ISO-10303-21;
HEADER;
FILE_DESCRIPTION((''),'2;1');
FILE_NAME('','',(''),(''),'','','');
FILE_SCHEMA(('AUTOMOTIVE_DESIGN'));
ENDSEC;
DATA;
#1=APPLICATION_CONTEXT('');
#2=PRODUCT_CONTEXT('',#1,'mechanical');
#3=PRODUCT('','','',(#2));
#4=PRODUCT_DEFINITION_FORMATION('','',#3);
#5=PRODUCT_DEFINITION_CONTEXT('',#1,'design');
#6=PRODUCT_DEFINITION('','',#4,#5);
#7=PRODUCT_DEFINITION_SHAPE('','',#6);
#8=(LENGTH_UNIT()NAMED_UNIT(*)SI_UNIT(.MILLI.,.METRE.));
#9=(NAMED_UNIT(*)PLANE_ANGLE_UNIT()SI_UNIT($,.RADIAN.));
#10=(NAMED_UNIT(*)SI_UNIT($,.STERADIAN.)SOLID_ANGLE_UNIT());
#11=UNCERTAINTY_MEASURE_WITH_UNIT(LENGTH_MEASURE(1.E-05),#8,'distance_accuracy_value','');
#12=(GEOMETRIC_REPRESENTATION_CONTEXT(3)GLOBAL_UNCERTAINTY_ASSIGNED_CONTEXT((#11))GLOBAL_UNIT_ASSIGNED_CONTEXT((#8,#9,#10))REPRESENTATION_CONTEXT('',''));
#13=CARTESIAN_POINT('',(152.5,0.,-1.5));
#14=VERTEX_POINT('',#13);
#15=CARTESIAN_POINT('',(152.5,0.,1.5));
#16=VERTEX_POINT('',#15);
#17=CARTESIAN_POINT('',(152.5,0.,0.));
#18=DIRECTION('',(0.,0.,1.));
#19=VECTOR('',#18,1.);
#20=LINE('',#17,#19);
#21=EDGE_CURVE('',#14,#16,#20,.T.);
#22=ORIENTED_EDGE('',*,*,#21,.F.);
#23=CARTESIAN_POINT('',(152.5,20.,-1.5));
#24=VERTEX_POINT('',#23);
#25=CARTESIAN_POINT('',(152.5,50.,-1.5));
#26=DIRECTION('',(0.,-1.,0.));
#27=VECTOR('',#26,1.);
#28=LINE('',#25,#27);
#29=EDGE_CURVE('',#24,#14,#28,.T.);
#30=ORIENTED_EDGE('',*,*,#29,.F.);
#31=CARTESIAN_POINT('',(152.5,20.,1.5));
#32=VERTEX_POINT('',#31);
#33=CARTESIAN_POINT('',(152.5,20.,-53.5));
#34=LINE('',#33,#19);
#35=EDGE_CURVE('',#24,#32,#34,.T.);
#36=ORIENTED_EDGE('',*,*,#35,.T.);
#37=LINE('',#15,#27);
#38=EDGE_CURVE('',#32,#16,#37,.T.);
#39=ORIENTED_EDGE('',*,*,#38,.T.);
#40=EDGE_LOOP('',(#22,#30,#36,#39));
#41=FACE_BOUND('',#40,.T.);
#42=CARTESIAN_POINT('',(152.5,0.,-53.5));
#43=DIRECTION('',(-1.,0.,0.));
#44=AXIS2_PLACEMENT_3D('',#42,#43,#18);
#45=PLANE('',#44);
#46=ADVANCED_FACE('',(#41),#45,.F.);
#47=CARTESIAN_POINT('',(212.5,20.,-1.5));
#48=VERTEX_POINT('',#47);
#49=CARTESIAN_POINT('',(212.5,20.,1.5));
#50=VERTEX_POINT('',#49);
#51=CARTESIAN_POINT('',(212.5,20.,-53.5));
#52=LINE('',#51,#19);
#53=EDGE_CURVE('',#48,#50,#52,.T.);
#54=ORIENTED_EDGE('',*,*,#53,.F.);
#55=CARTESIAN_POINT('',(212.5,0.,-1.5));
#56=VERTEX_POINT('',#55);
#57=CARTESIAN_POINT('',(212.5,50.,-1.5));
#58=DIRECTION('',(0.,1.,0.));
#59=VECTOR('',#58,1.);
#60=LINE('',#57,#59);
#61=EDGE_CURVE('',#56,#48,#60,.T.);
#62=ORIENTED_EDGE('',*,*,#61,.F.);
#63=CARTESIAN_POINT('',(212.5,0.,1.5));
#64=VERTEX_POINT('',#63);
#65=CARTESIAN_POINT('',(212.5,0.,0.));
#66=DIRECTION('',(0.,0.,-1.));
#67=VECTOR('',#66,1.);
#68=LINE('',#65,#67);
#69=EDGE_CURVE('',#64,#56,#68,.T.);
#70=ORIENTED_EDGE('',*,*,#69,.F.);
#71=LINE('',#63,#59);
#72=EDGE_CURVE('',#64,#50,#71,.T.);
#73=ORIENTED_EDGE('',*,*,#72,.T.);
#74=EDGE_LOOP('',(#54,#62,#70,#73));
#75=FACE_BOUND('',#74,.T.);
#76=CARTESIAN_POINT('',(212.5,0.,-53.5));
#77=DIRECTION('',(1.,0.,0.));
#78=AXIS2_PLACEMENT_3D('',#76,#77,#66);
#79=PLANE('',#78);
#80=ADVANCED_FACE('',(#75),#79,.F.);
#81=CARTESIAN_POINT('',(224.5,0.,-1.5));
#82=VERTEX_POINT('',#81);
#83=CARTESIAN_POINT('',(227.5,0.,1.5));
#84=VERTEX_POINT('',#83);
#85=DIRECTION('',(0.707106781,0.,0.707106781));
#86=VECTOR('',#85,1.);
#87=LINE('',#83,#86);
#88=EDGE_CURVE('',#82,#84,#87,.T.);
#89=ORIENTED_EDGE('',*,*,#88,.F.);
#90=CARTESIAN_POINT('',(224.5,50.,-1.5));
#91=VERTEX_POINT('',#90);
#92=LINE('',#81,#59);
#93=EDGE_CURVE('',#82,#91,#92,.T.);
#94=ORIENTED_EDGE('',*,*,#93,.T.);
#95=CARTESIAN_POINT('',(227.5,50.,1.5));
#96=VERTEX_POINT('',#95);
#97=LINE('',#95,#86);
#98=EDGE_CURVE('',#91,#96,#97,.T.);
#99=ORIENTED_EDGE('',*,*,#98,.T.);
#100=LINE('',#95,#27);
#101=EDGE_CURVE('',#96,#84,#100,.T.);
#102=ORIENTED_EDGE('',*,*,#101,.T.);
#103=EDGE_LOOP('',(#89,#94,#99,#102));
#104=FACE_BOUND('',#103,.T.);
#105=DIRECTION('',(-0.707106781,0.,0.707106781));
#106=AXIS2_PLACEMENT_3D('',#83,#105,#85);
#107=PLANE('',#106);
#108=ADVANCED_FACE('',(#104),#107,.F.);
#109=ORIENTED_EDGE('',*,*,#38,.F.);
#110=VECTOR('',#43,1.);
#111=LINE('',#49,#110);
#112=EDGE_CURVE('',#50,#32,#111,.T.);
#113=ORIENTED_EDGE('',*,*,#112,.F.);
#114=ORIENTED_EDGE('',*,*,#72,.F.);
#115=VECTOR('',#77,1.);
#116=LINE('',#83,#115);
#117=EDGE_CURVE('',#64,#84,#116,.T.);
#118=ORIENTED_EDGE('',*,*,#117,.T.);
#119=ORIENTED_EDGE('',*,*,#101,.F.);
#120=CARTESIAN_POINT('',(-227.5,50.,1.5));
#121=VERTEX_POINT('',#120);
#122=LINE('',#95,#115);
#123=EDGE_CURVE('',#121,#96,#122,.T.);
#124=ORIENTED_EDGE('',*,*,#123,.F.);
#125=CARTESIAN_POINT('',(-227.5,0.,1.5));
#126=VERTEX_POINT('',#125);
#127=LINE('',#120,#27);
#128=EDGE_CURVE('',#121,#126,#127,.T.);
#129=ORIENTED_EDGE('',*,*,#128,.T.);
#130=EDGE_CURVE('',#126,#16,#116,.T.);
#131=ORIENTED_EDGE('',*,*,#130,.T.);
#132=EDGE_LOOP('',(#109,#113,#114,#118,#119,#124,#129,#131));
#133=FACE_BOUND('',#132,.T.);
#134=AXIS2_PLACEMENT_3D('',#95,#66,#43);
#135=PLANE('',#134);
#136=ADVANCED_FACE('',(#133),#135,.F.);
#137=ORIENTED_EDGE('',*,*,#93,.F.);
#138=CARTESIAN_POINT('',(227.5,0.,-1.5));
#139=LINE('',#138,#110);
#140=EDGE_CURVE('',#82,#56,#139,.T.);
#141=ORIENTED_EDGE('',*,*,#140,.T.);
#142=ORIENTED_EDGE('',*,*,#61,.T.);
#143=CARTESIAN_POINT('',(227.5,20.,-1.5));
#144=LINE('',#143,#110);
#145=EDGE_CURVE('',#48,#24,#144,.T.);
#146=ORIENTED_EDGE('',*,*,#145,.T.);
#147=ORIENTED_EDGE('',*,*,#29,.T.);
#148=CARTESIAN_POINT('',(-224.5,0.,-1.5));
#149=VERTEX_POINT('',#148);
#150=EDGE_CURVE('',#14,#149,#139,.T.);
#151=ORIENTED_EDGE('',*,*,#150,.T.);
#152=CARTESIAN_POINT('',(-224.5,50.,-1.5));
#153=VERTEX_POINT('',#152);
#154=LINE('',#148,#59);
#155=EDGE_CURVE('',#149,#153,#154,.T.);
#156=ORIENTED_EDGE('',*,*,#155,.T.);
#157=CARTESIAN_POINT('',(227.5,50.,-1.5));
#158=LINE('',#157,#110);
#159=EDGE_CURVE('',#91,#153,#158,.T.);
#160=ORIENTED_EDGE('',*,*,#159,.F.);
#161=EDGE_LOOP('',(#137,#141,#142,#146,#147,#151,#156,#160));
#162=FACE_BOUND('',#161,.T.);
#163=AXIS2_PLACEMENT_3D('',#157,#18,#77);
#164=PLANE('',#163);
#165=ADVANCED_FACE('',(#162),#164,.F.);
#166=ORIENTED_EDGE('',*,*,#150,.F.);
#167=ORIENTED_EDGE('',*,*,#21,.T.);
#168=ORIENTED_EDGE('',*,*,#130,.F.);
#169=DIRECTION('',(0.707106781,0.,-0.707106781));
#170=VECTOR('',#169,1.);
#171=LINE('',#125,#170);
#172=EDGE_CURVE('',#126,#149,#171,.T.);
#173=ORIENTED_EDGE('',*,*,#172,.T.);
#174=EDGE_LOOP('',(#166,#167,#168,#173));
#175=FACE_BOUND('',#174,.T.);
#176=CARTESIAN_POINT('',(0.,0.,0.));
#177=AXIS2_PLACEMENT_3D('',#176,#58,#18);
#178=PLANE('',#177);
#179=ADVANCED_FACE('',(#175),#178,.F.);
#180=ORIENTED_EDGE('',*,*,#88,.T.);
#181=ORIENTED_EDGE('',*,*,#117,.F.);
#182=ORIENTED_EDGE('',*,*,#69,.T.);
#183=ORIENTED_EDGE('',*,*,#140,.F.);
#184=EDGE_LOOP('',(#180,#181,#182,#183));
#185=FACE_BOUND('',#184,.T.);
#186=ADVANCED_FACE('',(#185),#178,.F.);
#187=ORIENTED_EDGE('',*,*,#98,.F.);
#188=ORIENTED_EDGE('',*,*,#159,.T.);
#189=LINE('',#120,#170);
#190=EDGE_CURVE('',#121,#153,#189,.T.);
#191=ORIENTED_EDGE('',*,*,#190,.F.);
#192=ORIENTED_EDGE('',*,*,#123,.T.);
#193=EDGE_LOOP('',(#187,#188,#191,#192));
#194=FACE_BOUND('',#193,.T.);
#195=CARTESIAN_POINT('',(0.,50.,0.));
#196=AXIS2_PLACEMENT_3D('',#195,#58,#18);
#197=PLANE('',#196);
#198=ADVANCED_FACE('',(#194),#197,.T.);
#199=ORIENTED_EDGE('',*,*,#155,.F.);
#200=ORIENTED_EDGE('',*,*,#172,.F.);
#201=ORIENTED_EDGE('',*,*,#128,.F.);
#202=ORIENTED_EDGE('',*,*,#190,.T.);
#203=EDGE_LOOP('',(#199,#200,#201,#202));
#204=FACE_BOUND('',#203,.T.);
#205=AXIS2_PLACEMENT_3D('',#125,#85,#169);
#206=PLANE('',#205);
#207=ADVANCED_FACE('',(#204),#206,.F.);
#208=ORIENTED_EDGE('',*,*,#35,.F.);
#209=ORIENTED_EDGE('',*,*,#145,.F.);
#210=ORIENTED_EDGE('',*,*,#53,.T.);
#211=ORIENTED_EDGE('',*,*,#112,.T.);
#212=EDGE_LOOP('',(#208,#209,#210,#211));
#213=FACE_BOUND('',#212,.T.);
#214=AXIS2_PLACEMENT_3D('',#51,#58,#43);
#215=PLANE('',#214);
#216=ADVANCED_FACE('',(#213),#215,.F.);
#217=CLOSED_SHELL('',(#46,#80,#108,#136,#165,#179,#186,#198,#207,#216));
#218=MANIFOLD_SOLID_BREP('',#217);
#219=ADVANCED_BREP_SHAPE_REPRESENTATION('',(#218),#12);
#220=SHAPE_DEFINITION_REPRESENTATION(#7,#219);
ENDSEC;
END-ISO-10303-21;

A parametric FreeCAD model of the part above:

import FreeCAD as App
import Part
import Sketcher
from FreeCAD import Vector


def add_polygon(sketch, points):
    """Adds a closed chain of lines whose ends are joined by coincident constraints."""
    first, n = sketch.GeometryCount, len(points)
    for a, b in zip(points, points[1:] + points[:1]):
        sketch.addGeometry(Part.LineSegment(App.Vector(*a, 0), App.Vector(*b, 0)), False)
    for i in range(n):
        sketch.addConstraint(Sketcher.Constraint("Coincident", first + i, 2, first + (i + 1) % n, 1))

doc = App.newDocument("Part")
params = doc.addObject("Spreadsheet::Sheet", "Params")
for row, (alias, value) in enumerate([
    ("sketch1_width", "455 mm"),
    ("sketch1_height", "3 mm"),
    ("pad1_length", "50 mm"),
    ("sketch2_width", "60 mm"),
    ("sketch2_height", "20 mm"),
    ("pocket1_length", "55 mm"),
    ("sketch3_width", "3 mm"),
], start=1):
    params.set(f"A{row}", alias)
    params.set(f"B{row}", "=" + value)
    params.setAlias(f"B{row}", alias)

body = doc.addObject("PartDesign::Body", "Body")

# Sketch on XZ plane
sketch1 = body.newObject("Sketcher::SketchObject", "Sketch")
sketch1.AttachmentSupport = (doc.getObject("XZ_Plane"), [""])
sketch1.MapMode = "FlatFace"
add_polygon(sketch1, [(-227.5, -1.5), (-227.5, 1.5), (227.5, 1.5), (227.5, -1.5)])  # lines 0-3
sketch1.addConstraint([
    Sketcher.Constraint("Vertical", 0),
    Sketcher.Constraint("Horizontal", 1),
    Sketcher.Constraint("Vertical", 2),
    Sketcher.Constraint("Horizontal", 3),
    Sketcher.Constraint("Symmetric", 0, 2, 2, 2, -1, 1),
    Sketcher.Constraint("DistanceX", 1, 1, 1, 2, 455.0),
    Sketcher.Constraint("DistanceY", 0, 1, 0, 2, 3.0),
])
sketch1.setExpression("Constraints[9]", "Params.sketch1_width")
sketch1.setExpression("Constraints[10]", "Params.sketch1_height")
pad1 = body.newObject("PartDesign::Pad", "Pad")
pad1.Profile = sketch1
pad1.setExpression("Length", "Params.pad1_length")
pad1.Reversed = True

# Sketch on XY plane
sketch2 = body.newObject("Sketcher::SketchObject", "Sketch001")
sketch2.AttachmentSupport = (doc.getObject("XY_Plane"), [""])
sketch2.MapMode = "FlatFace"
sketch2.AttachmentOffset = App.Placement(Vector(0, 0, 1.5), App.Rotation())
add_polygon(sketch2, [(152.5, 20), (152.5, 0), (212.5, 0), (212.5, 20)])  # lines 0-3
sketch2.addConstraint([
    Sketcher.Constraint("Vertical", 0),
    Sketcher.Constraint("Horizontal", 1),
    Sketcher.Constraint("Vertical", 2),
    Sketcher.Constraint("Horizontal", 3),
    Sketcher.Constraint("PointOnObject", 0, 2, -1),
    Sketcher.Constraint("DistanceX", 1, 1, 1, 2, 60.0),
    Sketcher.Constraint("DistanceY", 0, 2, 0, 1, 20.0),
    Sketcher.Constraint("DistanceX", -1, 1, 0, 2, 152.5),
])
sketch2.setExpression("Constraints[9]", "Params.sketch2_width")
sketch2.setExpression("Constraints[10]", "Params.sketch2_height")
pocket1 = body.newObject("PartDesign::Pocket", "Pocket")
pocket1.Profile = sketch2
pocket1.setExpression("Length", "Params.pocket1_length")

# Sketch on XZ plane
sketch3 = body.newObject("Sketcher::SketchObject", "Sketch002")
sketch3.AttachmentSupport = (doc.getObject("XZ_Plane"), [""])
sketch3.MapMode = "FlatFace"
sketch3.AttachmentOffset = App.Placement(Vector(0, 0, -50), App.Rotation())
add_polygon(sketch3, [(-227.5, -1.5), (-227.5, 1.5), (-224.5, -1.5)])  # lines 0-2
add_polygon(sketch3, [(227.5, 1.5), (227.5, -1.5), (224.5, -1.5)])  # lines 3-5
sketch3.addConstraint([
    Sketcher.Constraint("Vertical", 0),
    Sketcher.Constraint("Horizontal", 2),
    Sketcher.Constraint("Vertical", 3),
    Sketcher.Constraint("Horizontal", 4),
    Sketcher.Constraint("Symmetric", 0, 2, 3, 2, -1, 1),
    Sketcher.Constraint("Symmetric", 1, 2, 4, 2, -2),
    Sketcher.Constraint("Perpendicular", 1, 5),
    Sketcher.Constraint("Horizontal", 0, 2, 5, 2),
    Sketcher.Constraint("DistanceX", 2, 2, 2, 1, 3.0),
    Sketcher.Constraint("DistanceX", 1, 2, 3, 2, 452.0),
])
sketch3.setExpression("Constraints[14]", "Params.sketch3_width")
pocket2 = body.newObject("PartDesign::Pocket", "Pocket001")
pocket2.Profile = sketch3
pocket2.Type = "ThroughAll"
pocket2.Reversed = True

doc.recompute()
